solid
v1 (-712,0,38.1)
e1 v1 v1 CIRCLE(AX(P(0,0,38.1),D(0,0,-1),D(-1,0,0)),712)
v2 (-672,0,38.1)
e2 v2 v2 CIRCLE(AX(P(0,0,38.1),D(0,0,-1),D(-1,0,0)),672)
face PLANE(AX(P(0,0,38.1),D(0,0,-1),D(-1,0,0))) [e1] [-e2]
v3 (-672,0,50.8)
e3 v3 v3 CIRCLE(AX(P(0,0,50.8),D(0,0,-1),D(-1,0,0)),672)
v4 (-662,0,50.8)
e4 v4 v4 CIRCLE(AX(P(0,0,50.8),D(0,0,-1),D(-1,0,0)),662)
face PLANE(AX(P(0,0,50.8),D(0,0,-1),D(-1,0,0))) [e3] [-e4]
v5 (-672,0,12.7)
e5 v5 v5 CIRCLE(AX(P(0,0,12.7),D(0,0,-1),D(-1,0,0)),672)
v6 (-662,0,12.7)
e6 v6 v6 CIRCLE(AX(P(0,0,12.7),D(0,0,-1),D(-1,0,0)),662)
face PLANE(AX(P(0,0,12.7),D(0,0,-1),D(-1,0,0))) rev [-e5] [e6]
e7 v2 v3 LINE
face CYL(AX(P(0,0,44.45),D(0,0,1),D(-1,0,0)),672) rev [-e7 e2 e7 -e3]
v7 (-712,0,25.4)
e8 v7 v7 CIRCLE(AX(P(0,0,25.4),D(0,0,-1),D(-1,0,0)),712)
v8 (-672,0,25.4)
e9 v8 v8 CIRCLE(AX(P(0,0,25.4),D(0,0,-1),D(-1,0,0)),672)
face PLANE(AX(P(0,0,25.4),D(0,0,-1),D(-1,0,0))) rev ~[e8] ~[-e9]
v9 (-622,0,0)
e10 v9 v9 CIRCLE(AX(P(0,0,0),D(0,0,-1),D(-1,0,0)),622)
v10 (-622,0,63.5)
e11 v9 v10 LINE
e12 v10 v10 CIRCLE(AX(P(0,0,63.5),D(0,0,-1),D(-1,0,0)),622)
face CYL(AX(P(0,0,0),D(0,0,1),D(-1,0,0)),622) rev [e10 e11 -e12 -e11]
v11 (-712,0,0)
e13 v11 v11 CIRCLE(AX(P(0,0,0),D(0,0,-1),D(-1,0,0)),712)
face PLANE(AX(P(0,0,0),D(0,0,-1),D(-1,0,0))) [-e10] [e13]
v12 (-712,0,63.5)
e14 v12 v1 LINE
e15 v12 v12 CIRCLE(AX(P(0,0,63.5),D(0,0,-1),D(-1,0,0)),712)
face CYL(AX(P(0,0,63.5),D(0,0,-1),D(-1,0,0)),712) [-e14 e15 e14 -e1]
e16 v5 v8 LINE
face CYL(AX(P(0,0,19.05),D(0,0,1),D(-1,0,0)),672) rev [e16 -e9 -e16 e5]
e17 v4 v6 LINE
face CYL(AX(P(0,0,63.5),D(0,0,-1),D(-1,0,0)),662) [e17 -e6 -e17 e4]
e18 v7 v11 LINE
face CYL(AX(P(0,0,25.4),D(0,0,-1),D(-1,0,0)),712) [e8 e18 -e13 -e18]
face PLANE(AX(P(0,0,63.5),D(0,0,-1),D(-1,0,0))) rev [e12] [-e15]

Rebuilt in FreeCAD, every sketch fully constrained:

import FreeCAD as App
import Part
import Sketcher
from FreeCAD import Vector


def add_polygon(sketch, points):
    """Adds a closed chain of lines whose ends are joined by coincident constraints."""
    first, n = sketch.GeometryCount, len(points)
    for a, b in zip(points, points[1:] + points[:1]):
        sketch.addGeometry(Part.LineSegment(App.Vector(*a, 0), App.Vector(*b, 0)), False)
    for i in range(n):
        sketch.addConstraint(Sketcher.Constraint("Coincident", first + i, 2, first + (i + 1) % n, 1))

doc = App.newDocument("Part")
body = doc.addObject("PartDesign::Body", "Body")

sketch1 = body.newObject("Sketcher::SketchObject", "Sketch")
sketch1.AttachmentSupport = (doc.getObject("XZ_Plane"), [""])
sketch1.MapMode = "FlatFace"
add_polygon(sketch1, [(-622, 0), (-622, 64), (-662, 64), (-662, 0)])
sketch1.addConstraint([
    Sketcher.Constraint("Vertical", 0),
    Sketcher.Constraint("Horizontal", 1),
    Sketcher.Constraint("Vertical", 2),
    Sketcher.Constraint("Horizontal", 3),
    Sketcher.Constraint("PointOnObject", 2, 2, -1),
    Sketcher.Constraint("DistanceX", 1, 2, 1, 1, 40.0),
    Sketcher.Constraint("DistanceY", 0, 1, 0, 2, 63.5),
    Sketcher.Constraint("DistanceX", 0, 2, -1, 1, 622.0),
])
revolution = body.newObject("PartDesign::Revolution", "Revolution")
revolution.Profile = sketch1
revolution.ReferenceAxis = (sketch1, ["V_Axis"])
revolution.Angle = 360

sketch2 = body.newObject("Sketcher::SketchObject", "Sketch001")
sketch2.AttachmentSupport = (doc.getObject("XZ_Plane"), [""])
sketch2.MapMode = "FlatFace"
add_polygon(sketch2, [(-662, 51), (-662, 64), (-712, 64), (-712, 38), (-672, 38), (-672, 51)])
sketch2.addConstraint([
    Sketcher.Constraint("Vertical", 0),
    Sketcher.Constraint("Horizontal", 1),
    Sketcher.Constraint("Vertical", 2),
    Sketcher.Constraint("Horizontal", 3),
    Sketcher.Constraint("Vertical", 4),
    Sketcher.Constraint("Horizontal", 5),
    Sketcher.Constraint("Equal", 0, 4),
    Sketcher.Constraint("DistanceX", 1, 2, 1, 1, 50.0),
    Sketcher.Constraint("DistanceX", 3, 1, 3, 2, 40.0),
    Sketcher.Constraint("DistanceY", 0, 1, 0, 2, 12.7),
    Sketcher.Constraint("DistanceX", 0, 2, -1, 1, 662.0),
    Sketcher.Constraint("DistanceY", -1, 1, 0, 2, 63.5),
])
revolution2 = body.newObject("PartDesign::Revolution", "Revolution001")
revolution2.Profile = sketch2
revolution2.ReferenceAxis = (sketch2, ["V_Axis"])
revolution2.Angle = 360

sketch3 = body.newObject("Sketcher::SketchObject", "Sketch002")
sketch3.AttachmentSupport = (doc.getObject("XZ_Plane"), [""])
sketch3.MapMode = "FlatFace"
add_polygon(sketch3, [(-712, 25), (-712, 0), (-662, 0), (-662, 13), (-672, 13), (-672, 25)])
sketch3.addConstraint([
    Sketcher.Constraint("Vertical", 0),
    Sketcher.Constraint("Horizontal", 1),
    Sketcher.Constraint("Vertical", 2),
    Sketcher.Constraint("Horizontal", 3),
    Sketcher.Constraint("Vertical", 4),
    Sketcher.Constraint("Horizontal", 5),
    Sketcher.Constraint("PointOnObject", 0, 2, -1),
    Sketcher.Constraint("Equal", 2, 4),
    Sketcher.Constraint("DistanceX", 1, 1, 1, 2, 50.0),
    Sketcher.Constraint("DistanceX", 3, 2, 3, 1, 10.0),
    Sketcher.Constraint("DistanceY", 0, 2, 0, 1, 25.4),
    Sketcher.Constraint("DistanceX", 0, 2, -1, 1, 712.0),
])
revolution3 = body.newObject("PartDesign::Revolution", "Revolution002")
revolution3.Profile = sketch3
revolution3.ReferenceAxis = (sketch3, ["V_Axis"])
revolution3.Angle = 360

doc.recompute()
